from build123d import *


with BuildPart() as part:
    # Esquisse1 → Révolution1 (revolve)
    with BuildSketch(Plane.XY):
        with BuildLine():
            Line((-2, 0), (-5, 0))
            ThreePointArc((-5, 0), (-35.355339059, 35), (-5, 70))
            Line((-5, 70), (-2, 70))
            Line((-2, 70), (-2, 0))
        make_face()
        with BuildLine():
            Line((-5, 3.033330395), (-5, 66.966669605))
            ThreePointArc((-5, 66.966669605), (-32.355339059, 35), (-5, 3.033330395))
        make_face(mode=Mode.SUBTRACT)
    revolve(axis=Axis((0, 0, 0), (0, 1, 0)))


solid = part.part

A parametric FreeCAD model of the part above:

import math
import FreeCAD as App
import Part
import Sketcher

doc = App.newDocument("Part")
body = doc.addObject("PartDesign::Body", "Body")

sketch1 = doc.addObject("Sketcher::SketchObject", "Sketch")
body.addObject(sketch1)
sketch1.AttachmentSupport = (doc.XY_Plane, [""])
sketch1.MapMode = "FlatFace"
sketch1.addGeometry(Part.LineSegment(App.Vector(-5, 0, 0), App.Vector(-2, 0, 0)), False)
sketch1.addGeometry(Part.LineSegment(App.Vector(-2, 0, 0), App.Vector(-2, 70, 0)), False)
sketch1.addGeometry(Part.LineSegment(App.Vector(-2, 70, 0), App.Vector(-5, 70, 0)), False)
sketch1.addGeometry(Part.ArcOfCircle(Part.Circle(App.Vector(0, 35, 0), App.Vector(0, 0, 1), 35.355339), math.radians(98.130102), math.radians(261.869898)), False)
sketch1.addGeometry(Part.ArcOfCircle(Part.Circle(App.Vector(0, 35, 0), App.Vector(0, 0, 1), 32.355339), math.radians(98.889771), math.radians(261.110229)), False)
sketch1.addGeometry(Part.LineSegment(App.Vector(-5, 66.96667, 0), App.Vector(-5, 3.03333, 0)), False)
sketch1.addConstraint(Sketcher.Constraint("Coincident", 0, 2, 1, 1))
sketch1.addConstraint(Sketcher.Constraint("Coincident", 1, 2, 2, 1))
sketch1.addConstraint(Sketcher.Constraint("Coincident", 2, 2, 3, 1))
sketch1.addConstraint(Sketcher.Constraint("Coincident", 3, 2, 0, 1))
sketch1.addConstraint(Sketcher.Constraint("Coincident", 4, 1, 5, 1))
sketch1.addConstraint(Sketcher.Constraint("Coincident", 5, 2, 4, 2))
sketch1.addConstraint(Sketcher.Constraint("Horizontal", 0))
sketch1.addConstraint(Sketcher.Constraint("Vertical", 1))
sketch1.addConstraint(Sketcher.Constraint("Horizontal", 2))
sketch1.addConstraint(Sketcher.Constraint("Vertical", 5))
sketch1.addConstraint(Sketcher.Constraint("Coincident", 4, 3, 3, 3))
sketch1.addConstraint(Sketcher.Constraint("PointOnObject", 3, 3, -2))
sketch1.addConstraint(Sketcher.Constraint("PointOnObject", 0, 2, -1))
sketch1.addConstraint(Sketcher.Constraint("Vertical", 2, 2, 3, 2))
sketch1.addConstraint(Sketcher.Constraint("Vertical", 3, 2, 4, 1))
sketch1.addConstraint(Sketcher.Constraint("DistanceX", 0, 1, 0, 2, 3.0))
sketch1.addConstraint(Sketcher.Constraint("DistanceY", 1, 1, 1, 2, 70.0))
sketch1.addConstraint(Sketcher.Constraint("DistanceX", 0, 2, -1, 1, 2.0))
sketch1.addConstraint(Sketcher.Constraint("Radius", 4, 32.355339))
revolution = doc.addObject("PartDesign::Revolution", "Revolution")
body.addObject(revolution)
revolution.Profile = sketch1
revolution.ReferenceAxis = (sketch1, ["V_Axis"])
revolution.Angle = 360

doc.recompute()
